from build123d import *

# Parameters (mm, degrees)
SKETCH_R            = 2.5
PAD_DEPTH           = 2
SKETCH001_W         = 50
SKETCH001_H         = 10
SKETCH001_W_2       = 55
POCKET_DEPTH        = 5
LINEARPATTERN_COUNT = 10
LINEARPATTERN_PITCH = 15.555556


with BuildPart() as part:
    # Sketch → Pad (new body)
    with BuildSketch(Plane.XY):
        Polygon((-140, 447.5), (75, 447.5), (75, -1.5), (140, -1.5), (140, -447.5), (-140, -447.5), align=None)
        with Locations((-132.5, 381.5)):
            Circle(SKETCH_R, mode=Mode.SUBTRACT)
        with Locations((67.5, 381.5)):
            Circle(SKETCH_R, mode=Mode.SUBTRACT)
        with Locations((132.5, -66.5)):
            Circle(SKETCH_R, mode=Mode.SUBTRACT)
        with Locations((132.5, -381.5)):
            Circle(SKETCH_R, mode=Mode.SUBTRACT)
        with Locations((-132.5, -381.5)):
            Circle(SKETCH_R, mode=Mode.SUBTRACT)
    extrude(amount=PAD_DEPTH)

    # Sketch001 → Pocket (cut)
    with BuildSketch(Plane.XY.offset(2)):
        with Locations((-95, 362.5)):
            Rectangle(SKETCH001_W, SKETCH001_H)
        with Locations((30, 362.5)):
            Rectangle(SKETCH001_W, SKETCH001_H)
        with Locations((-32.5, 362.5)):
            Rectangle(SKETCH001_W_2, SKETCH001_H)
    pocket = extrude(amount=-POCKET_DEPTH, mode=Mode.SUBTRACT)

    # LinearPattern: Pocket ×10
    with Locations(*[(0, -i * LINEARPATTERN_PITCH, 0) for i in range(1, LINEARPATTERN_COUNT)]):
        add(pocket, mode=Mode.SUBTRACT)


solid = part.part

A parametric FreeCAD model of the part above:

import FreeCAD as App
import Part
import Sketcher
Q = App.Units.Quantity


def add_polygon(sketch, points):
    """Adds a closed chain of lines whose ends are joined by coincident constraints."""
    first, n = sketch.GeometryCount, len(points)
    for a, b in zip(points, points[1:] + points[:1]):
        sketch.addGeometry(Part.LineSegment(App.Vector(*a, 0), App.Vector(*b, 0)), False)
    for i in range(n):
        sketch.addConstraint(Sketcher.Constraint("Coincident", first + i, 2, first + (i + 1) % n, 1))

doc = App.newDocument("Part")
body = doc.addObject("PartDesign::Body", "Body")

# Sketch on XY plane
sketch1 = body.newObject("Sketcher::SketchObject", "Sketch")
sketch1.AttachmentSupport = (doc.getObject("XY_Plane"), [""])
sketch1.MapMode = "FlatFace"
add_polygon(sketch1, [(75, 447.5), (-140, 447.5), (-140, -447.5), (140, -447.5), (140, -1.5), (75, -1.5)])  # lines 0-5
sketch1.addGeometry(Part.Circle(App.Vector(132.5, -381.5, 0), App.Vector(0, 0, 1), 2.5), False)  # 6
sketch1.addGeometry(Part.Circle(App.Vector(132.5, -66.5, 0), App.Vector(0, 0, 1), 2.5), False)  # 7
sketch1.addGeometry(Part.Circle(App.Vector(-132.5, -381.5, 0), App.Vector(0, 0, 1), 2.5), False)  # 8
sketch1.addGeometry(Part.Circle(App.Vector(67.5, 381.5, 0), App.Vector(0, 0, 1), 2.5), False)  # 9
sketch1.addGeometry(Part.Circle(App.Vector(-132.5, 381.5, 0), App.Vector(0, 0, 1), 2.5), False)  # 10
sketch1.addConstraint(Sketcher.Constraint("Horizontal", 0))
sketch1.addConstraint(Sketcher.Constraint("Vertical", 1))
sketch1.addConstraint(Sketcher.Constraint("Horizontal", 2))
sketch1.addConstraint(Sketcher.Constraint("Vertical", 3))
sketch1.addConstraint(Sketcher.Constraint("Horizontal", 4))
sketch1.addConstraint(Sketcher.Constraint("Vertical", 5))
sketch1.addConstraint(Sketcher.Constraint("Equal", 6, 7))
sketch1.addConstraint(Sketcher.Constraint("Equal", 7, 8))
sketch1.addConstraint(Sketcher.Constraint("Equal", 8, 9))
sketch1.addConstraint(Sketcher.Constraint("Equal", 9, 10))
sketch1.addConstraint(Sketcher.Constraint("Symmetric", 6, 3, 10, 3, -1, 1))
sketch1.addConstraint(Sketcher.Constraint("Symmetric", 0, 2, 2, 2, -1, 1))
sketch1.addConstraint(Sketcher.Constraint("Symmetric", 6, 3, 8, 3, -2))
sketch1.addConstraint(Sketcher.Constraint("Horizontal", 9, 3, 10, 3))
sketch1.addConstraint(Sketcher.Constraint("Vertical", 6, 3, 7, 3))
sketch1.addConstraint(Sketcher.Constraint("Diameter", 6, Q("5 mm")))
sketch1.addConstraint(Sketcher.Constraint("DistanceX", 0, 2, 0, 1, Q("215 mm")))
sketch1.addConstraint(Sketcher.Constraint("DistanceX", 2, 1, 2, 2, Q("280 mm")))
sketch1.addConstraint(Sketcher.Constraint("DistanceY", 1, 2, 1, 1, Q("895 mm")))
sketch1.addConstraint(Sketcher.Constraint("DistanceY", 3, 1, 3, 2, Q("446 mm")))
sketch1.addConstraint(Sketcher.Constraint("DistanceY", 6, 3, 7, 3, Q("315 mm")))
sketch1.addConstraint(Sketcher.Constraint("DistanceX", 8, 3, 6, 3, Q("265 mm")))
sketch1.addConstraint(Sketcher.Constraint("DistanceX", 9, 3, 7, 3, Q("65 mm")))
sketch1.addConstraint(Sketcher.Constraint("DistanceY", 7, 3, 9, 3, Q("448 mm")))
pad1 = body.newObject("PartDesign::Pad", "Pad")
pad1.Profile = sketch1
pad1.Length = 2

# Sketch on XY plane
sketch2 = body.newObject("Sketcher::SketchObject", "Sketch001")
sketch2.AttachmentSupport = (doc.getObject("XY_Plane"), [""])
sketch2.MapMode = "FlatFace"
sketch2.AttachmentOffset = App.Placement(App.Vector(0, 0, 2), App.Rotation())
add_polygon(sketch2, [(-120, 367.5), (-120, 357.5), (-70, 357.5), (-70, 367.5)])  # lines 0-3
add_polygon(sketch2, [(5, 367.5), (5, 357.5), (55, 357.5), (55, 367.5)])  # lines 4-7
add_polygon(sketch2, [(-60, 367.5), (-60, 357.5), (-5, 357.5), (-5, 367.5)])  # lines 8-11
sketch2.addConstraint(Sketcher.Constraint("Vertical", 0))
sketch2.addConstraint(Sketcher.Constraint("Horizontal", 1))
sketch2.addConstraint(Sketcher.Constraint("Vertical", 2))
sketch2.addConstraint(Sketcher.Constraint("Horizontal", 3))
sketch2.addConstraint(Sketcher.Constraint("Vertical", 4))
sketch2.addConstraint(Sketcher.Constraint("Horizontal", 5))
sketch2.addConstraint(Sketcher.Constraint("Vertical", 6))
sketch2.addConstraint(Sketcher.Constraint("Horizontal", 7))
sketch2.addConstraint(Sketcher.Constraint("Vertical", 8))
sketch2.addConstraint(Sketcher.Constraint("Horizontal", 9))
sketch2.addConstraint(Sketcher.Constraint("Vertical", 10))
sketch2.addConstraint(Sketcher.Constraint("Horizontal", 11))
sketch2.addConstraint(Sketcher.Constraint("Symmetric", 4, 2, 9, 2, -2))
sketch2.addConstraint(Sketcher.Constraint("Horizontal", 1, 2, 4, 2))
sketch2.addConstraint(Sketcher.Constraint("Horizontal", 3, 2, 6, 2))
sketch2.addConstraint(Sketcher.Constraint("Horizontal", 7, 2, 10, 2))
sketch2.addConstraint(Sketcher.Constraint("Equal", 3, 5))
sketch2.addConstraint(Sketcher.Constraint("DistanceX", 1, 1, 1, 2, Q("50 mm")))
sketch2.addConstraint(Sketcher.Constraint("DistanceX", 9, 1, 9, 2, Q("55 mm")))
sketch2.addConstraint(Sketcher.Constraint("DistanceY", 0, 2, 0, 1, Q("10 mm")))
sketch2.addConstraint(Sketcher.Constraint("DistanceX", 0, 2, -1, 1, Q("120 mm")))
sketch2.addConstraint(Sketcher.Constraint("DistanceX", -1, 1, 4, 2, Q("5 mm")))
sketch2.addConstraint(Sketcher.Constraint("DistanceY", -1, 1, 0, 2, Q("357.5 mm")))
pocket1 = body.newObject("PartDesign::Pocket", "Pocket")
pocket1.Profile = sketch2
pocket1.Length = 5
doc.recompute()

linearpattern = body.newObject("PartDesign::LinearPattern", "LinearPattern")
linearpattern.Originals = [pocket1]
linearpattern.Direction = (doc.getObject("Y_Axis"), [""])
linearpattern.Mode = "offset"
linearpattern.Offset = 15.555556
linearpattern.Occurrences = 10
linearpattern.Reversed = True
body.Tip = linearpattern

doc.recompute()
